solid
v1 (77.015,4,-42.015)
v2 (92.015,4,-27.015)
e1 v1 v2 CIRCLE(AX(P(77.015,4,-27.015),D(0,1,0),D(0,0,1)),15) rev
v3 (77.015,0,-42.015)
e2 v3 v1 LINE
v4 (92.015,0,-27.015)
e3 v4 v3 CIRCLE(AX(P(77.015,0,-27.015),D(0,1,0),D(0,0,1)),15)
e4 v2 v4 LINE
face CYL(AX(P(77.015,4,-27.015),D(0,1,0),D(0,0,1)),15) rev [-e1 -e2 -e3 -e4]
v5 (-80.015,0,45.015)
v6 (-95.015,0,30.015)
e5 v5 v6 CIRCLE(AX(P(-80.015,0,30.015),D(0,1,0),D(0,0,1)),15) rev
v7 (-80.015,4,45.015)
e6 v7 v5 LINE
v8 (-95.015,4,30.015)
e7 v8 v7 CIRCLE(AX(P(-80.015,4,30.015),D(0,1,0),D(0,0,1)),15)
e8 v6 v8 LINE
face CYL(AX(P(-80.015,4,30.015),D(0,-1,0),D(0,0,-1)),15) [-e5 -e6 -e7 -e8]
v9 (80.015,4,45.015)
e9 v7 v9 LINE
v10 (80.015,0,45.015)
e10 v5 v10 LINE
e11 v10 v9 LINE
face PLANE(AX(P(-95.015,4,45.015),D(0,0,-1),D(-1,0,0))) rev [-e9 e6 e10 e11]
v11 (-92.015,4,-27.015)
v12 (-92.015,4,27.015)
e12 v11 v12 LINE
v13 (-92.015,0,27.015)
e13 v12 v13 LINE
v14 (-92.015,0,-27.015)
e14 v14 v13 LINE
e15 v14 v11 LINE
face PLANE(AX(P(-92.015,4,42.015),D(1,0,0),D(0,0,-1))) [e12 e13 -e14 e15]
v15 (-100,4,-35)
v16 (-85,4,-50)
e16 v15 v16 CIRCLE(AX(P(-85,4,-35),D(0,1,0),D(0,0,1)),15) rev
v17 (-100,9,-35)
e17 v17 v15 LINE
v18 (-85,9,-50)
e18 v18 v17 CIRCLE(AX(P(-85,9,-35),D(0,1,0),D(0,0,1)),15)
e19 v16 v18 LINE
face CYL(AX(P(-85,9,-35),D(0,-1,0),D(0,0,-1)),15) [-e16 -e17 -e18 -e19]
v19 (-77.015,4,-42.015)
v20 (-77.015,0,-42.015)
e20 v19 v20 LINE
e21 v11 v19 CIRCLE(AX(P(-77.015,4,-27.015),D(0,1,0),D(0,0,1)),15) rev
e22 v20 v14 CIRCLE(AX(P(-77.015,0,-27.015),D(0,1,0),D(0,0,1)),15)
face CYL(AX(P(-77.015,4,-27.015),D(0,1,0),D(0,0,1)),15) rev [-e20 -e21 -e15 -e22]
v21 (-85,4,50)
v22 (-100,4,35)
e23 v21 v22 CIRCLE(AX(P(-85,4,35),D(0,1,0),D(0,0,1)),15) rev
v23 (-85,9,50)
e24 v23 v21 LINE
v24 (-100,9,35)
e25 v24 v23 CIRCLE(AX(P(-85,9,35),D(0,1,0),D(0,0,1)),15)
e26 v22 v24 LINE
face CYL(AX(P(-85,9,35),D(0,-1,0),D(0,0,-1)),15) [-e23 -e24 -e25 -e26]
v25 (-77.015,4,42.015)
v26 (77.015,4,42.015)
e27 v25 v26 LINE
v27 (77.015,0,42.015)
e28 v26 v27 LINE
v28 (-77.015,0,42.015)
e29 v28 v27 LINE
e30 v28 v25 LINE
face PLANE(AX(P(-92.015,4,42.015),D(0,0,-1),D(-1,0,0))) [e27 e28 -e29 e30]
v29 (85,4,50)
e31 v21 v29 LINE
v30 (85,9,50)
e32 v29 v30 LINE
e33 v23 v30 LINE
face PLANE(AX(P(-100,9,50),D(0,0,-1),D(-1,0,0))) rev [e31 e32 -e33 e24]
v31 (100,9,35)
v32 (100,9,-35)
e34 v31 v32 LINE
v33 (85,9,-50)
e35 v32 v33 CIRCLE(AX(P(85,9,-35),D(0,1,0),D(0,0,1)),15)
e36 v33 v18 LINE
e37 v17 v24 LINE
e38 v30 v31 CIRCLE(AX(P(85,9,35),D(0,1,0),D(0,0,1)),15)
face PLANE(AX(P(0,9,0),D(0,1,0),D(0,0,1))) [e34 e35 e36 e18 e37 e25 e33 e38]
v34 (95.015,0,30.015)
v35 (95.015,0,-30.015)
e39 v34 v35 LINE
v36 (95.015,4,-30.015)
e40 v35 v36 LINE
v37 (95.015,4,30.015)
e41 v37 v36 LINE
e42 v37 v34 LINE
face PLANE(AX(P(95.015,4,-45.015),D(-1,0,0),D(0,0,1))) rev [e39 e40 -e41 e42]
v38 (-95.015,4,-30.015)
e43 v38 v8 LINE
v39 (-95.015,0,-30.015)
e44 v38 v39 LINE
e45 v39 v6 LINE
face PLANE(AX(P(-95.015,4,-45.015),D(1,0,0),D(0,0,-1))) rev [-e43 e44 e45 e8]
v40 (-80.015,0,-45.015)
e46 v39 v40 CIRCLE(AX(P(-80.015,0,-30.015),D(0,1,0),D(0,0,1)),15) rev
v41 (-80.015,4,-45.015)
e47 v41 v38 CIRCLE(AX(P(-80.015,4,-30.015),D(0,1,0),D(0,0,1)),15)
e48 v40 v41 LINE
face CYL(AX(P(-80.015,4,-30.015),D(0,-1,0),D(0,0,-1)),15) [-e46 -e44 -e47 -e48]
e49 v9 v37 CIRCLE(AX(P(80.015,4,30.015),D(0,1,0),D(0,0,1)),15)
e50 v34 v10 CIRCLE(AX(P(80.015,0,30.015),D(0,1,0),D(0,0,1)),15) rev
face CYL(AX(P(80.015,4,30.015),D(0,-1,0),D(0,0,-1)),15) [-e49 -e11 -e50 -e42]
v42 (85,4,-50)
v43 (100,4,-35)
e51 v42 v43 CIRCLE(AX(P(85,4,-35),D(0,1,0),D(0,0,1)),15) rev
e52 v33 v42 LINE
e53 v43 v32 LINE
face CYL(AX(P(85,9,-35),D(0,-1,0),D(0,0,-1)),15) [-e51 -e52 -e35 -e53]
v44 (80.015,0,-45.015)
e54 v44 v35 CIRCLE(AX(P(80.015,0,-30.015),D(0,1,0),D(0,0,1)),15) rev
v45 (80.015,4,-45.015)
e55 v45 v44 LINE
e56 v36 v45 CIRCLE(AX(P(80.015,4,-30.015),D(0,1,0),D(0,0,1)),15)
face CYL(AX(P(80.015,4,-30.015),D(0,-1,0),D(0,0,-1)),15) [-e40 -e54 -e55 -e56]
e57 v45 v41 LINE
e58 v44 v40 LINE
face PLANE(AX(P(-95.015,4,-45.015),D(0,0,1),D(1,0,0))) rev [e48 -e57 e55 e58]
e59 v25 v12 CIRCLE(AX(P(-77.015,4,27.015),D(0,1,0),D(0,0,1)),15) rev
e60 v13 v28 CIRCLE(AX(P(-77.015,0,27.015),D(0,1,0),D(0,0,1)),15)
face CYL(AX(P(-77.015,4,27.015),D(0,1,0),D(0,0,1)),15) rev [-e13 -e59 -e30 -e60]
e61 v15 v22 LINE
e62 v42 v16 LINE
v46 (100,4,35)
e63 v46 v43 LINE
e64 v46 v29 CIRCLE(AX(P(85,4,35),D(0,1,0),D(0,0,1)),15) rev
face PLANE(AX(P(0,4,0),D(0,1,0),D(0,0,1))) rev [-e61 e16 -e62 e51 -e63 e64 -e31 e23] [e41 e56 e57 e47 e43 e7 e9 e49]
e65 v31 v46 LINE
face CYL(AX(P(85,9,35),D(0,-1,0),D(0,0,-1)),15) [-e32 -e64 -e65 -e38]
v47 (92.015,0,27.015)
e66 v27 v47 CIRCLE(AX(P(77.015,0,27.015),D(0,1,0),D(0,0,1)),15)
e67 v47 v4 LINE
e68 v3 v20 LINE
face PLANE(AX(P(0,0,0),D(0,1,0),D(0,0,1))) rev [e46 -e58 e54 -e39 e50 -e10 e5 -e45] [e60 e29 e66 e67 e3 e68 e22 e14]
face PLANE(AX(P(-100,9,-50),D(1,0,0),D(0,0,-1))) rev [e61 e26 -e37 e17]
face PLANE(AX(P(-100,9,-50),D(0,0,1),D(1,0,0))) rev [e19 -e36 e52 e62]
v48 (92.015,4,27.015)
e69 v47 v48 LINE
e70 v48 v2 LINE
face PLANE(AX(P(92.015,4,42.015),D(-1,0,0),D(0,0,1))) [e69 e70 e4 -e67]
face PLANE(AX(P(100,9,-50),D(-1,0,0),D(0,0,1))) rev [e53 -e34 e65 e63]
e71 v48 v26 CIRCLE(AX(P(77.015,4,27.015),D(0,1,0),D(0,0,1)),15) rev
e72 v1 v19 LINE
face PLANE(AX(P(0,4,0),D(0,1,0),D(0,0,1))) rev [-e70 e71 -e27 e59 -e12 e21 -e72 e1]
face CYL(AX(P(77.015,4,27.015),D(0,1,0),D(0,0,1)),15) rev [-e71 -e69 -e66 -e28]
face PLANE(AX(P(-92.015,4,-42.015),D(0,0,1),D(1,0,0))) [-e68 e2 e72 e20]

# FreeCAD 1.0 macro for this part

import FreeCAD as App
import Part
import Sketcher
from FreeCAD import Vector
Q = App.Units.Quantity


def edges_at(feature, points):
    """Names of the edges that pass closest to the given points."""
    edges = feature.Shape.Edges
    near = lambda p: min(range(len(edges)), key=lambda i: edges[i].distToShape(Part.Vertex(*p))[0])
    return sorted({f"Edge{near(p) + 1}" for p in points})


def add_polygon(sketch, points):
    """Adds a closed chain of lines whose ends are joined by coincident constraints."""
    first, n = sketch.GeometryCount, len(points)
    for a, b in zip(points, points[1:] + points[:1]):
        sketch.addGeometry(Part.LineSegment(App.Vector(*a, 0), App.Vector(*b, 0)), False)
    for i in range(n):
        sketch.addConstraint(Sketcher.Constraint("Coincident", first + i, 2, first + (i + 1) % n, 1))

doc = App.newDocument("Part")
body = doc.addObject("PartDesign::Body", "Body")

sketch1 = body.newObject("Sketcher::SketchObject", "Sketch")
sketch1.AttachmentSupport = (doc.getObject("XZ_Plane"), [""])
sketch1.MapMode = "FlatFace"
add_polygon(sketch1, [(-95.015, -45.015), (-95.015, 45.015), (95.015, 45.015), (95.015, -45.015)])
add_polygon(sketch1, [(92.015, 42.015), (-92.015, 42.015), (-92.015, -42.015), (92.015, -42.015)])
sketch1.addConstraint([
    Sketcher.Constraint("Vertical", 0),
    Sketcher.Constraint("Horizontal", 1),
    Sketcher.Constraint("Vertical", 2),
    Sketcher.Constraint("Horizontal", 3),
    Sketcher.Constraint("Horizontal", 4),
    Sketcher.Constraint("Vertical", 5),
    Sketcher.Constraint("Horizontal", 6),
    Sketcher.Constraint("Vertical", 7),
    Sketcher.Constraint("Symmetric", 0, 2, 2, 2, -1, 1),
    Sketcher.Constraint("Symmetric", 4, 2, 6, 2, -1, 1),
    Sketcher.Constraint("DistanceX", 0, 2, 4, 2, Q("3 mm")),
    Sketcher.Constraint("DistanceY", 4, 2, 0, 2, Q("3 mm")),
    Sketcher.Constraint("DistanceX", 1, 1, 1, 2, Q("190.03 mm")),
    Sketcher.Constraint("DistanceY", 0, 1, 0, 2, Q("90.03 mm")),
])
pad1 = body.newObject("PartDesign::Pad", "Pad")
pad1.Profile = sketch1
pad1.Length = 4
pad1.Reversed = True

sketch2 = body.newObject("Sketcher::SketchObject", "Sketch001")
sketch2.AttachmentSupport = (doc.getObject("XZ_Plane"), [""])
sketch2.MapMode = "FlatFace"
sketch2.AttachmentOffset = App.Placement(Vector(0, 0, -4), App.Rotation())
add_polygon(sketch2, [(-100, -50), (-100, 50), (100, 50), (100, -50)])
sketch2.addConstraint([
    Sketcher.Constraint("Vertical", 0),
    Sketcher.Constraint("Horizontal", 1),
    Sketcher.Constraint("Vertical", 2),
    Sketcher.Constraint("Horizontal", 3),
    Sketcher.Constraint("Symmetric", 0, 2, 2, 2, -1, 1),
    Sketcher.Constraint("DistanceX", 1, 1, 1, 2, Q("200 mm")),
    Sketcher.Constraint("DistanceY", 0, 1, 0, 2, Q("100 mm")),
])
pad2 = body.newObject("PartDesign::Pad", "Pad001")
pad2.Profile = sketch2
pad2.Length = 5
pad2.Reversed = True
doc.recompute()

fillet = body.newObject("PartDesign::Fillet", "Fillet")
fillet.Base = (pad2, edges_at(pad2, [
    (92.015, 2, 42.015),
    (92.015, 2, -42.015),
    (-92.015, 2, -42.015),
    (-92.015, 2, 42.015),
    (100, 6.5, 50),
    (100, 6.5, -50),
    (-100, 6.5, -50),
    (-100, 6.5, 50),
    (95.015, 2, 45.015),
    (-95.015, 2, 45.015),
    (-95.015, 2, -45.015),
    (95.015, 2, -45.015),
]))
fillet.Radius = 15

doc.recompute()
